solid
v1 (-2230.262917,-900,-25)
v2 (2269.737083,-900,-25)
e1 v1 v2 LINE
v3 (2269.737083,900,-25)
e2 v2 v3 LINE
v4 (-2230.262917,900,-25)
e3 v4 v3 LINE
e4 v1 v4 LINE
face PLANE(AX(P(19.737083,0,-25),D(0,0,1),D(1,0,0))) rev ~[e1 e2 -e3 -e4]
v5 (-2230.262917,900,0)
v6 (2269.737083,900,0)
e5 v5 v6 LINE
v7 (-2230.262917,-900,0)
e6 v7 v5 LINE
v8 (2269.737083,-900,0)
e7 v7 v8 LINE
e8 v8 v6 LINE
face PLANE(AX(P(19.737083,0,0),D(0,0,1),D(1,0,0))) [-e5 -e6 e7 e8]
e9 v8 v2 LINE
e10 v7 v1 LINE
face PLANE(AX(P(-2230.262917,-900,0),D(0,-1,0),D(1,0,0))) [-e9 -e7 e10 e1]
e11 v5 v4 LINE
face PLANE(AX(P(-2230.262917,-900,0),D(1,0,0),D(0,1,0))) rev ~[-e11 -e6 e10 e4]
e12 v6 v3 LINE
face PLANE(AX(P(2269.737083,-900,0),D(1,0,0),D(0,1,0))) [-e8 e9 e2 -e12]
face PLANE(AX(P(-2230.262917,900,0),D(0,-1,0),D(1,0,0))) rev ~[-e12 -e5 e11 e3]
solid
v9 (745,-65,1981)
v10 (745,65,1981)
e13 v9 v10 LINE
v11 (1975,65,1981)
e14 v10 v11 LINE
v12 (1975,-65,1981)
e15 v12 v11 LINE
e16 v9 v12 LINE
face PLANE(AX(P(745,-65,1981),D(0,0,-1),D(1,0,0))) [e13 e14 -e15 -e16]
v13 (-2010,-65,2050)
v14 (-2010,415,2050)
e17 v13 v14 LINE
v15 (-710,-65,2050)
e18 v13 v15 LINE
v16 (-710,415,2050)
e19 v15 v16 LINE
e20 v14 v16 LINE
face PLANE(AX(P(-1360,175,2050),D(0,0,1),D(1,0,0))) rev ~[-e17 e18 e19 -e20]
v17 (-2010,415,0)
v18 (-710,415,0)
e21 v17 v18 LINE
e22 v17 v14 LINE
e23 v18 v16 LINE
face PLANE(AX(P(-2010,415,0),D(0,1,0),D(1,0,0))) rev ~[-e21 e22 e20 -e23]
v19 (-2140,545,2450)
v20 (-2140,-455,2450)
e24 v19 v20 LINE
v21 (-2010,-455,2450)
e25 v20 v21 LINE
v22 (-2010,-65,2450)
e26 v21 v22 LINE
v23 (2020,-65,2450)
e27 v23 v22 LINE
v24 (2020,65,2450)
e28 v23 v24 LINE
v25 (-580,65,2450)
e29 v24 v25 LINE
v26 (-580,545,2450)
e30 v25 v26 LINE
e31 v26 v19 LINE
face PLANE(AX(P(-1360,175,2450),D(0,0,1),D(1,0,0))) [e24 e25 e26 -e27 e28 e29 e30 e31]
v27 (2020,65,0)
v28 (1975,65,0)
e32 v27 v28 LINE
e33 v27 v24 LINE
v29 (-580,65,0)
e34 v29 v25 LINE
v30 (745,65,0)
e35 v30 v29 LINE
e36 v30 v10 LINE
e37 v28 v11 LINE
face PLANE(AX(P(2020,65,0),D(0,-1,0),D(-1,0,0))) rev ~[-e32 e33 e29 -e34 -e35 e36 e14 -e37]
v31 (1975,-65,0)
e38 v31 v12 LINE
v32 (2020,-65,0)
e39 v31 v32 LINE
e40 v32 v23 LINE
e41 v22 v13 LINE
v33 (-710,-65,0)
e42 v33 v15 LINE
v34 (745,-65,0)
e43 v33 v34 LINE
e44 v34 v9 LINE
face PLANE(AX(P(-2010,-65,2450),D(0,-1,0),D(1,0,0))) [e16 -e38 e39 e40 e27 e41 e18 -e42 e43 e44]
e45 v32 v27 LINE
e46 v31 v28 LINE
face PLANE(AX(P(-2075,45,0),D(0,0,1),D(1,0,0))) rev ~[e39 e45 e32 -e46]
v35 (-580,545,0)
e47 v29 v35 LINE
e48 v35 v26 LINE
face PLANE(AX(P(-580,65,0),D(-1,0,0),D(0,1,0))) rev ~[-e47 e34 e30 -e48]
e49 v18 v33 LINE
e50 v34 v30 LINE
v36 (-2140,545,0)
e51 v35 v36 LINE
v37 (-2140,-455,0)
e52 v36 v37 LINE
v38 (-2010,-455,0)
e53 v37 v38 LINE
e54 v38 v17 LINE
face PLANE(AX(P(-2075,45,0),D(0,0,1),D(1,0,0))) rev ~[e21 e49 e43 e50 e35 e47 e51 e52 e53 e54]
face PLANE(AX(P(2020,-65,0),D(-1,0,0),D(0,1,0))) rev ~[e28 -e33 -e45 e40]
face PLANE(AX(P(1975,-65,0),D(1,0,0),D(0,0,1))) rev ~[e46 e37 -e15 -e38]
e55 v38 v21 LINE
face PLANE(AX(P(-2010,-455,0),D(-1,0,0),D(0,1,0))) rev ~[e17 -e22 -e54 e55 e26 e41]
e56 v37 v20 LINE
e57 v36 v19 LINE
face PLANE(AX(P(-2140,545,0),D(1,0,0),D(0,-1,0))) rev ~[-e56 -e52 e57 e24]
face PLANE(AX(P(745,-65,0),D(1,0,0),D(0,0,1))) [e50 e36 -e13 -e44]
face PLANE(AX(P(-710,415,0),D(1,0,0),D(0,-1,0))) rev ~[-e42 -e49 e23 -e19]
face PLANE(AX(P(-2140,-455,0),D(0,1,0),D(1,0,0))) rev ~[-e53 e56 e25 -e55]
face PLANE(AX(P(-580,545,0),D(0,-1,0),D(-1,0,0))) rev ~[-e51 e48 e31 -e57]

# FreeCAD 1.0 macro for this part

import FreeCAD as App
import Part
import Sketcher
from FreeCAD import Vector

doc = App.newDocument("Part")
body = doc.addObject("PartDesign::Body", "Body")

sketch1 = body.newObject("Sketcher::SketchObject", "Sketch")
sketch1.AttachmentSupport = (doc.getObject("XY_Plane"), [""])
sketch1.MapMode = "FlatFace"
sketch1.addGeometry([
    Part.LineSegment(Vector(-2010, -455, 0), Vector(-2010, 415, 0)),
    Part.LineSegment(Vector(-2010, 415, 0), Vector(-710, 415, 0)),
    Part.LineSegment(Vector(-710, 415, 0), Vector(-710, -65, 0)),
    Part.LineSegment(Vector(-710, -65, 0), Vector(2020, -65, 0)),
    Part.LineSegment(Vector(2020, -65, 0), Vector(2020, 65, 0)),
    Part.LineSegment(Vector(2020, 65, 0), Vector(-580, 65, 0)),
    Part.LineSegment(Vector(-580, 65, 0), Vector(-580, 545, 0)),
    Part.LineSegment(Vector(-580, 545, 0), Vector(-2140, 545, 0)),
    Part.LineSegment(Vector(-2140, 545, 0), Vector(-2140, -455, 0)),
    Part.LineSegment(Vector(-2140, -455, 0), Vector(-2010, -455, 0)),
], False)
sketch1.addConstraint([
    Sketcher.Constraint("Coincident", 0, 2, 1, 1),
    Sketcher.Constraint("Coincident", 1, 2, 2, 1),
    Sketcher.Constraint("Coincident", 2, 2, 3, 1),
    Sketcher.Constraint("Coincident", 3, 2, 4, 1),
    Sketcher.Constraint("Coincident", 4, 2, 5, 1),
    Sketcher.Constraint("Coincident", 5, 2, 6, 1),
    Sketcher.Constraint("Coincident", 6, 2, 7, 1),
    Sketcher.Constraint("Coincident", 7, 2, 8, 1),
    Sketcher.Constraint("Coincident", 8, 2, 9, 1),
    Sketcher.Constraint("Coincident", 9, 2, 0, 1),
    Sketcher.Constraint("Vertical", 0),
    Sketcher.Constraint("Horizontal", 1),
    Sketcher.Constraint("Vertical", 2),
    Sketcher.Constraint("Horizontal", 3),
    Sketcher.Constraint("Vertical", 4),
    Sketcher.Constraint("Horizontal", 5),
    Sketcher.Constraint("Vertical", 6),
    Sketcher.Constraint("Horizontal", 7),
    Sketcher.Constraint("Vertical", 8),
    Sketcher.Constraint("Horizontal", 9),
    Sketcher.Constraint("Equal", 9, 4),
    Sketcher.Constraint("Equal", 2, 6),
    Sketcher.Constraint("DistanceX", 1, 1, 1, 2, 1300.0),
    Sketcher.Constraint("DistanceX", 3, 1, 3, 2, 2730.0),
    Sketcher.Constraint("DistanceX", 5, 2, 5, 1, 2600.0),
    Sketcher.Constraint("DistanceX", 7, 2, 7, 1, 1560.0),
    Sketcher.Constraint("DistanceY", 0, 1, 0, 2, 870.0),
    Sketcher.Constraint("DistanceY", 2, 2, 2, 1, 480.0),
    Sketcher.Constraint("DistanceX", 0, 2, -1, 1, 2010.0),
    Sketcher.Constraint("DistanceY", -1, 1, 0, 2, 415.0),
])
pad1 = body.newObject("PartDesign::Pad", "Pad")
pad1.Profile = sketch1
pad1.Length = 2450

sketch2 = body.newObject("Sketcher::SketchObject", "Sketch001")
sketch2.AttachmentSupport = (doc.getObject("XY_Plane"), [""])
sketch2.MapMode = "FlatFace"
sketch2.AttachmentOffset = App.Placement(Vector(0, 0, 2450), App.Rotation())
sketch2.addGeometry([
    Part.LineSegment(Vector(-2010, 415, 0), Vector(-2010, -65, 0)),
    Part.LineSegment(Vector(-2010, -65, 0), Vector(-710, -65, 0)),
    Part.LineSegment(Vector(-710, -65, 0), Vector(-710, 415, 0)),
    Part.LineSegment(Vector(-710, 415, 0), Vector(-2010, 415, 0)),
], False)
sketch2.addConstraint([
    Sketcher.Constraint("Coincident", 0, 2, 1, 1),
    Sketcher.Constraint("Coincident", 1, 2, 2, 1),
    Sketcher.Constraint("Coincident", 2, 2, 3, 1),
    Sketcher.Constraint("Coincident", 3, 2, 0, 1),
    Sketcher.Constraint("Vertical", 0),
    Sketcher.Constraint("Horizontal", 1),
    Sketcher.Constraint("Vertical", 2),
    Sketcher.Constraint("Horizontal", 3),
    Sketcher.Constraint("DistanceX", 1, 1, 1, 2, 1300.0),
    Sketcher.Constraint("DistanceY", 0, 2, 0, 1, 480.0),
    Sketcher.Constraint("DistanceX", 0, 2, -1, 1, 2010.0),
    Sketcher.Constraint("DistanceY", 0, 2, -1, 1, 65.0),
])
pad2 = body.newObject("PartDesign::Pad", "Pad001")
pad2.Profile = sketch2
pad2.Length = 400
pad2.Reversed = True

sketch3 = body.newObject("Sketcher::SketchObject", "Sketch002")
sketch3.AttachmentSupport = (doc.getObject("XZ_Plane"), [""])
sketch3.MapMode = "FlatFace"
sketch3.AttachmentOffset = App.Placement(Vector(0, 0, 65), App.Rotation())
sketch3.addGeometry([
    Part.LineSegment(Vector(745, 1981, 0), Vector(745, 0, 0)),
    Part.LineSegment(Vector(745, 0, 0), Vector(1975, 0, 0)),
    Part.LineSegment(Vector(1975, 0, 0), Vector(1975, 1981, 0)),
    Part.LineSegment(Vector(1975, 1981, 0), Vector(745, 1981, 0)),
], False)
sketch3.addConstraint([
    Sketcher.Constraint("Coincident", 0, 2, 1, 1),
    Sketcher.Constraint("Coincident", 1, 2, 2, 1),
    Sketcher.Constraint("Coincident", 2, 2, 3, 1),
    Sketcher.Constraint("Coincident", 3, 2, 0, 1),
    Sketcher.Constraint("Vertical", 0),
    Sketcher.Constraint("Horizontal", 1),
    Sketcher.Constraint("Vertical", 2),
    Sketcher.Constraint("Horizontal", 3),
    Sketcher.Constraint("PointOnObject", 0, 2, -1),
    Sketcher.Constraint("DistanceX", 1, 1, 1, 2, 1230.0),
    Sketcher.Constraint("DistanceY", 0, 2, 0, 1, 1981.0),
    Sketcher.Constraint("DistanceX", -1, 1, 0, 2, 745.0),
])
pocket1 = body.newObject("PartDesign::Pocket", "Pocket")
pocket1.Profile = sketch3
pocket1.Type = "ThroughAll"
body2 = doc.addObject("PartDesign::Body", "Body001")

sketch4 = body2.newObject("Sketcher::SketchObject", "Sketch003")
sketch4.AttachmentSupport = (doc.getObject("XY_Plane001"), [""])
sketch4.MapMode = "FlatFace"
sketch4.addGeometry([
    Part.LineSegment(Vector(-2230, 900, 0), Vector(-2230, -900, 0)),
    Part.LineSegment(Vector(-2230, -900, 0), Vector(2270, -900, 0)),
    Part.LineSegment(Vector(2270, -900, 0), Vector(2270, 900, 0)),
    Part.LineSegment(Vector(2270, 900, 0), Vector(-2230, 900, 0)),
], False)
sketch4.addConstraint([
    Sketcher.Constraint("Coincident", 0, 2, 1, 1),
    Sketcher.Constraint("Coincident", 1, 2, 2, 1),
    Sketcher.Constraint("Coincident", 2, 2, 3, 1),
    Sketcher.Constraint("Coincident", 3, 2, 0, 1),
    Sketcher.Constraint("Vertical", 0),
    Sketcher.Constraint("Horizontal", 1),
    Sketcher.Constraint("Vertical", 2),
    Sketcher.Constraint("Horizontal", 3),
    Sketcher.Constraint("DistanceX", 1, 1, 1, 2, 4500.0),
    Sketcher.Constraint("DistanceY", 0, 2, 0, 1, 1800.0),
    Sketcher.Constraint("DistanceY", 0, 2, -1, 1, 900.0),
    Sketcher.Constraint("DistanceX", 0, 2, -1, 1, 2230.262917),
])
pad3 = body2.newObject("PartDesign::Pad", "Pad002")
pad3.Profile = sketch4
pad3.Length = 25
pad3.Reversed = True

doc.recompute()
